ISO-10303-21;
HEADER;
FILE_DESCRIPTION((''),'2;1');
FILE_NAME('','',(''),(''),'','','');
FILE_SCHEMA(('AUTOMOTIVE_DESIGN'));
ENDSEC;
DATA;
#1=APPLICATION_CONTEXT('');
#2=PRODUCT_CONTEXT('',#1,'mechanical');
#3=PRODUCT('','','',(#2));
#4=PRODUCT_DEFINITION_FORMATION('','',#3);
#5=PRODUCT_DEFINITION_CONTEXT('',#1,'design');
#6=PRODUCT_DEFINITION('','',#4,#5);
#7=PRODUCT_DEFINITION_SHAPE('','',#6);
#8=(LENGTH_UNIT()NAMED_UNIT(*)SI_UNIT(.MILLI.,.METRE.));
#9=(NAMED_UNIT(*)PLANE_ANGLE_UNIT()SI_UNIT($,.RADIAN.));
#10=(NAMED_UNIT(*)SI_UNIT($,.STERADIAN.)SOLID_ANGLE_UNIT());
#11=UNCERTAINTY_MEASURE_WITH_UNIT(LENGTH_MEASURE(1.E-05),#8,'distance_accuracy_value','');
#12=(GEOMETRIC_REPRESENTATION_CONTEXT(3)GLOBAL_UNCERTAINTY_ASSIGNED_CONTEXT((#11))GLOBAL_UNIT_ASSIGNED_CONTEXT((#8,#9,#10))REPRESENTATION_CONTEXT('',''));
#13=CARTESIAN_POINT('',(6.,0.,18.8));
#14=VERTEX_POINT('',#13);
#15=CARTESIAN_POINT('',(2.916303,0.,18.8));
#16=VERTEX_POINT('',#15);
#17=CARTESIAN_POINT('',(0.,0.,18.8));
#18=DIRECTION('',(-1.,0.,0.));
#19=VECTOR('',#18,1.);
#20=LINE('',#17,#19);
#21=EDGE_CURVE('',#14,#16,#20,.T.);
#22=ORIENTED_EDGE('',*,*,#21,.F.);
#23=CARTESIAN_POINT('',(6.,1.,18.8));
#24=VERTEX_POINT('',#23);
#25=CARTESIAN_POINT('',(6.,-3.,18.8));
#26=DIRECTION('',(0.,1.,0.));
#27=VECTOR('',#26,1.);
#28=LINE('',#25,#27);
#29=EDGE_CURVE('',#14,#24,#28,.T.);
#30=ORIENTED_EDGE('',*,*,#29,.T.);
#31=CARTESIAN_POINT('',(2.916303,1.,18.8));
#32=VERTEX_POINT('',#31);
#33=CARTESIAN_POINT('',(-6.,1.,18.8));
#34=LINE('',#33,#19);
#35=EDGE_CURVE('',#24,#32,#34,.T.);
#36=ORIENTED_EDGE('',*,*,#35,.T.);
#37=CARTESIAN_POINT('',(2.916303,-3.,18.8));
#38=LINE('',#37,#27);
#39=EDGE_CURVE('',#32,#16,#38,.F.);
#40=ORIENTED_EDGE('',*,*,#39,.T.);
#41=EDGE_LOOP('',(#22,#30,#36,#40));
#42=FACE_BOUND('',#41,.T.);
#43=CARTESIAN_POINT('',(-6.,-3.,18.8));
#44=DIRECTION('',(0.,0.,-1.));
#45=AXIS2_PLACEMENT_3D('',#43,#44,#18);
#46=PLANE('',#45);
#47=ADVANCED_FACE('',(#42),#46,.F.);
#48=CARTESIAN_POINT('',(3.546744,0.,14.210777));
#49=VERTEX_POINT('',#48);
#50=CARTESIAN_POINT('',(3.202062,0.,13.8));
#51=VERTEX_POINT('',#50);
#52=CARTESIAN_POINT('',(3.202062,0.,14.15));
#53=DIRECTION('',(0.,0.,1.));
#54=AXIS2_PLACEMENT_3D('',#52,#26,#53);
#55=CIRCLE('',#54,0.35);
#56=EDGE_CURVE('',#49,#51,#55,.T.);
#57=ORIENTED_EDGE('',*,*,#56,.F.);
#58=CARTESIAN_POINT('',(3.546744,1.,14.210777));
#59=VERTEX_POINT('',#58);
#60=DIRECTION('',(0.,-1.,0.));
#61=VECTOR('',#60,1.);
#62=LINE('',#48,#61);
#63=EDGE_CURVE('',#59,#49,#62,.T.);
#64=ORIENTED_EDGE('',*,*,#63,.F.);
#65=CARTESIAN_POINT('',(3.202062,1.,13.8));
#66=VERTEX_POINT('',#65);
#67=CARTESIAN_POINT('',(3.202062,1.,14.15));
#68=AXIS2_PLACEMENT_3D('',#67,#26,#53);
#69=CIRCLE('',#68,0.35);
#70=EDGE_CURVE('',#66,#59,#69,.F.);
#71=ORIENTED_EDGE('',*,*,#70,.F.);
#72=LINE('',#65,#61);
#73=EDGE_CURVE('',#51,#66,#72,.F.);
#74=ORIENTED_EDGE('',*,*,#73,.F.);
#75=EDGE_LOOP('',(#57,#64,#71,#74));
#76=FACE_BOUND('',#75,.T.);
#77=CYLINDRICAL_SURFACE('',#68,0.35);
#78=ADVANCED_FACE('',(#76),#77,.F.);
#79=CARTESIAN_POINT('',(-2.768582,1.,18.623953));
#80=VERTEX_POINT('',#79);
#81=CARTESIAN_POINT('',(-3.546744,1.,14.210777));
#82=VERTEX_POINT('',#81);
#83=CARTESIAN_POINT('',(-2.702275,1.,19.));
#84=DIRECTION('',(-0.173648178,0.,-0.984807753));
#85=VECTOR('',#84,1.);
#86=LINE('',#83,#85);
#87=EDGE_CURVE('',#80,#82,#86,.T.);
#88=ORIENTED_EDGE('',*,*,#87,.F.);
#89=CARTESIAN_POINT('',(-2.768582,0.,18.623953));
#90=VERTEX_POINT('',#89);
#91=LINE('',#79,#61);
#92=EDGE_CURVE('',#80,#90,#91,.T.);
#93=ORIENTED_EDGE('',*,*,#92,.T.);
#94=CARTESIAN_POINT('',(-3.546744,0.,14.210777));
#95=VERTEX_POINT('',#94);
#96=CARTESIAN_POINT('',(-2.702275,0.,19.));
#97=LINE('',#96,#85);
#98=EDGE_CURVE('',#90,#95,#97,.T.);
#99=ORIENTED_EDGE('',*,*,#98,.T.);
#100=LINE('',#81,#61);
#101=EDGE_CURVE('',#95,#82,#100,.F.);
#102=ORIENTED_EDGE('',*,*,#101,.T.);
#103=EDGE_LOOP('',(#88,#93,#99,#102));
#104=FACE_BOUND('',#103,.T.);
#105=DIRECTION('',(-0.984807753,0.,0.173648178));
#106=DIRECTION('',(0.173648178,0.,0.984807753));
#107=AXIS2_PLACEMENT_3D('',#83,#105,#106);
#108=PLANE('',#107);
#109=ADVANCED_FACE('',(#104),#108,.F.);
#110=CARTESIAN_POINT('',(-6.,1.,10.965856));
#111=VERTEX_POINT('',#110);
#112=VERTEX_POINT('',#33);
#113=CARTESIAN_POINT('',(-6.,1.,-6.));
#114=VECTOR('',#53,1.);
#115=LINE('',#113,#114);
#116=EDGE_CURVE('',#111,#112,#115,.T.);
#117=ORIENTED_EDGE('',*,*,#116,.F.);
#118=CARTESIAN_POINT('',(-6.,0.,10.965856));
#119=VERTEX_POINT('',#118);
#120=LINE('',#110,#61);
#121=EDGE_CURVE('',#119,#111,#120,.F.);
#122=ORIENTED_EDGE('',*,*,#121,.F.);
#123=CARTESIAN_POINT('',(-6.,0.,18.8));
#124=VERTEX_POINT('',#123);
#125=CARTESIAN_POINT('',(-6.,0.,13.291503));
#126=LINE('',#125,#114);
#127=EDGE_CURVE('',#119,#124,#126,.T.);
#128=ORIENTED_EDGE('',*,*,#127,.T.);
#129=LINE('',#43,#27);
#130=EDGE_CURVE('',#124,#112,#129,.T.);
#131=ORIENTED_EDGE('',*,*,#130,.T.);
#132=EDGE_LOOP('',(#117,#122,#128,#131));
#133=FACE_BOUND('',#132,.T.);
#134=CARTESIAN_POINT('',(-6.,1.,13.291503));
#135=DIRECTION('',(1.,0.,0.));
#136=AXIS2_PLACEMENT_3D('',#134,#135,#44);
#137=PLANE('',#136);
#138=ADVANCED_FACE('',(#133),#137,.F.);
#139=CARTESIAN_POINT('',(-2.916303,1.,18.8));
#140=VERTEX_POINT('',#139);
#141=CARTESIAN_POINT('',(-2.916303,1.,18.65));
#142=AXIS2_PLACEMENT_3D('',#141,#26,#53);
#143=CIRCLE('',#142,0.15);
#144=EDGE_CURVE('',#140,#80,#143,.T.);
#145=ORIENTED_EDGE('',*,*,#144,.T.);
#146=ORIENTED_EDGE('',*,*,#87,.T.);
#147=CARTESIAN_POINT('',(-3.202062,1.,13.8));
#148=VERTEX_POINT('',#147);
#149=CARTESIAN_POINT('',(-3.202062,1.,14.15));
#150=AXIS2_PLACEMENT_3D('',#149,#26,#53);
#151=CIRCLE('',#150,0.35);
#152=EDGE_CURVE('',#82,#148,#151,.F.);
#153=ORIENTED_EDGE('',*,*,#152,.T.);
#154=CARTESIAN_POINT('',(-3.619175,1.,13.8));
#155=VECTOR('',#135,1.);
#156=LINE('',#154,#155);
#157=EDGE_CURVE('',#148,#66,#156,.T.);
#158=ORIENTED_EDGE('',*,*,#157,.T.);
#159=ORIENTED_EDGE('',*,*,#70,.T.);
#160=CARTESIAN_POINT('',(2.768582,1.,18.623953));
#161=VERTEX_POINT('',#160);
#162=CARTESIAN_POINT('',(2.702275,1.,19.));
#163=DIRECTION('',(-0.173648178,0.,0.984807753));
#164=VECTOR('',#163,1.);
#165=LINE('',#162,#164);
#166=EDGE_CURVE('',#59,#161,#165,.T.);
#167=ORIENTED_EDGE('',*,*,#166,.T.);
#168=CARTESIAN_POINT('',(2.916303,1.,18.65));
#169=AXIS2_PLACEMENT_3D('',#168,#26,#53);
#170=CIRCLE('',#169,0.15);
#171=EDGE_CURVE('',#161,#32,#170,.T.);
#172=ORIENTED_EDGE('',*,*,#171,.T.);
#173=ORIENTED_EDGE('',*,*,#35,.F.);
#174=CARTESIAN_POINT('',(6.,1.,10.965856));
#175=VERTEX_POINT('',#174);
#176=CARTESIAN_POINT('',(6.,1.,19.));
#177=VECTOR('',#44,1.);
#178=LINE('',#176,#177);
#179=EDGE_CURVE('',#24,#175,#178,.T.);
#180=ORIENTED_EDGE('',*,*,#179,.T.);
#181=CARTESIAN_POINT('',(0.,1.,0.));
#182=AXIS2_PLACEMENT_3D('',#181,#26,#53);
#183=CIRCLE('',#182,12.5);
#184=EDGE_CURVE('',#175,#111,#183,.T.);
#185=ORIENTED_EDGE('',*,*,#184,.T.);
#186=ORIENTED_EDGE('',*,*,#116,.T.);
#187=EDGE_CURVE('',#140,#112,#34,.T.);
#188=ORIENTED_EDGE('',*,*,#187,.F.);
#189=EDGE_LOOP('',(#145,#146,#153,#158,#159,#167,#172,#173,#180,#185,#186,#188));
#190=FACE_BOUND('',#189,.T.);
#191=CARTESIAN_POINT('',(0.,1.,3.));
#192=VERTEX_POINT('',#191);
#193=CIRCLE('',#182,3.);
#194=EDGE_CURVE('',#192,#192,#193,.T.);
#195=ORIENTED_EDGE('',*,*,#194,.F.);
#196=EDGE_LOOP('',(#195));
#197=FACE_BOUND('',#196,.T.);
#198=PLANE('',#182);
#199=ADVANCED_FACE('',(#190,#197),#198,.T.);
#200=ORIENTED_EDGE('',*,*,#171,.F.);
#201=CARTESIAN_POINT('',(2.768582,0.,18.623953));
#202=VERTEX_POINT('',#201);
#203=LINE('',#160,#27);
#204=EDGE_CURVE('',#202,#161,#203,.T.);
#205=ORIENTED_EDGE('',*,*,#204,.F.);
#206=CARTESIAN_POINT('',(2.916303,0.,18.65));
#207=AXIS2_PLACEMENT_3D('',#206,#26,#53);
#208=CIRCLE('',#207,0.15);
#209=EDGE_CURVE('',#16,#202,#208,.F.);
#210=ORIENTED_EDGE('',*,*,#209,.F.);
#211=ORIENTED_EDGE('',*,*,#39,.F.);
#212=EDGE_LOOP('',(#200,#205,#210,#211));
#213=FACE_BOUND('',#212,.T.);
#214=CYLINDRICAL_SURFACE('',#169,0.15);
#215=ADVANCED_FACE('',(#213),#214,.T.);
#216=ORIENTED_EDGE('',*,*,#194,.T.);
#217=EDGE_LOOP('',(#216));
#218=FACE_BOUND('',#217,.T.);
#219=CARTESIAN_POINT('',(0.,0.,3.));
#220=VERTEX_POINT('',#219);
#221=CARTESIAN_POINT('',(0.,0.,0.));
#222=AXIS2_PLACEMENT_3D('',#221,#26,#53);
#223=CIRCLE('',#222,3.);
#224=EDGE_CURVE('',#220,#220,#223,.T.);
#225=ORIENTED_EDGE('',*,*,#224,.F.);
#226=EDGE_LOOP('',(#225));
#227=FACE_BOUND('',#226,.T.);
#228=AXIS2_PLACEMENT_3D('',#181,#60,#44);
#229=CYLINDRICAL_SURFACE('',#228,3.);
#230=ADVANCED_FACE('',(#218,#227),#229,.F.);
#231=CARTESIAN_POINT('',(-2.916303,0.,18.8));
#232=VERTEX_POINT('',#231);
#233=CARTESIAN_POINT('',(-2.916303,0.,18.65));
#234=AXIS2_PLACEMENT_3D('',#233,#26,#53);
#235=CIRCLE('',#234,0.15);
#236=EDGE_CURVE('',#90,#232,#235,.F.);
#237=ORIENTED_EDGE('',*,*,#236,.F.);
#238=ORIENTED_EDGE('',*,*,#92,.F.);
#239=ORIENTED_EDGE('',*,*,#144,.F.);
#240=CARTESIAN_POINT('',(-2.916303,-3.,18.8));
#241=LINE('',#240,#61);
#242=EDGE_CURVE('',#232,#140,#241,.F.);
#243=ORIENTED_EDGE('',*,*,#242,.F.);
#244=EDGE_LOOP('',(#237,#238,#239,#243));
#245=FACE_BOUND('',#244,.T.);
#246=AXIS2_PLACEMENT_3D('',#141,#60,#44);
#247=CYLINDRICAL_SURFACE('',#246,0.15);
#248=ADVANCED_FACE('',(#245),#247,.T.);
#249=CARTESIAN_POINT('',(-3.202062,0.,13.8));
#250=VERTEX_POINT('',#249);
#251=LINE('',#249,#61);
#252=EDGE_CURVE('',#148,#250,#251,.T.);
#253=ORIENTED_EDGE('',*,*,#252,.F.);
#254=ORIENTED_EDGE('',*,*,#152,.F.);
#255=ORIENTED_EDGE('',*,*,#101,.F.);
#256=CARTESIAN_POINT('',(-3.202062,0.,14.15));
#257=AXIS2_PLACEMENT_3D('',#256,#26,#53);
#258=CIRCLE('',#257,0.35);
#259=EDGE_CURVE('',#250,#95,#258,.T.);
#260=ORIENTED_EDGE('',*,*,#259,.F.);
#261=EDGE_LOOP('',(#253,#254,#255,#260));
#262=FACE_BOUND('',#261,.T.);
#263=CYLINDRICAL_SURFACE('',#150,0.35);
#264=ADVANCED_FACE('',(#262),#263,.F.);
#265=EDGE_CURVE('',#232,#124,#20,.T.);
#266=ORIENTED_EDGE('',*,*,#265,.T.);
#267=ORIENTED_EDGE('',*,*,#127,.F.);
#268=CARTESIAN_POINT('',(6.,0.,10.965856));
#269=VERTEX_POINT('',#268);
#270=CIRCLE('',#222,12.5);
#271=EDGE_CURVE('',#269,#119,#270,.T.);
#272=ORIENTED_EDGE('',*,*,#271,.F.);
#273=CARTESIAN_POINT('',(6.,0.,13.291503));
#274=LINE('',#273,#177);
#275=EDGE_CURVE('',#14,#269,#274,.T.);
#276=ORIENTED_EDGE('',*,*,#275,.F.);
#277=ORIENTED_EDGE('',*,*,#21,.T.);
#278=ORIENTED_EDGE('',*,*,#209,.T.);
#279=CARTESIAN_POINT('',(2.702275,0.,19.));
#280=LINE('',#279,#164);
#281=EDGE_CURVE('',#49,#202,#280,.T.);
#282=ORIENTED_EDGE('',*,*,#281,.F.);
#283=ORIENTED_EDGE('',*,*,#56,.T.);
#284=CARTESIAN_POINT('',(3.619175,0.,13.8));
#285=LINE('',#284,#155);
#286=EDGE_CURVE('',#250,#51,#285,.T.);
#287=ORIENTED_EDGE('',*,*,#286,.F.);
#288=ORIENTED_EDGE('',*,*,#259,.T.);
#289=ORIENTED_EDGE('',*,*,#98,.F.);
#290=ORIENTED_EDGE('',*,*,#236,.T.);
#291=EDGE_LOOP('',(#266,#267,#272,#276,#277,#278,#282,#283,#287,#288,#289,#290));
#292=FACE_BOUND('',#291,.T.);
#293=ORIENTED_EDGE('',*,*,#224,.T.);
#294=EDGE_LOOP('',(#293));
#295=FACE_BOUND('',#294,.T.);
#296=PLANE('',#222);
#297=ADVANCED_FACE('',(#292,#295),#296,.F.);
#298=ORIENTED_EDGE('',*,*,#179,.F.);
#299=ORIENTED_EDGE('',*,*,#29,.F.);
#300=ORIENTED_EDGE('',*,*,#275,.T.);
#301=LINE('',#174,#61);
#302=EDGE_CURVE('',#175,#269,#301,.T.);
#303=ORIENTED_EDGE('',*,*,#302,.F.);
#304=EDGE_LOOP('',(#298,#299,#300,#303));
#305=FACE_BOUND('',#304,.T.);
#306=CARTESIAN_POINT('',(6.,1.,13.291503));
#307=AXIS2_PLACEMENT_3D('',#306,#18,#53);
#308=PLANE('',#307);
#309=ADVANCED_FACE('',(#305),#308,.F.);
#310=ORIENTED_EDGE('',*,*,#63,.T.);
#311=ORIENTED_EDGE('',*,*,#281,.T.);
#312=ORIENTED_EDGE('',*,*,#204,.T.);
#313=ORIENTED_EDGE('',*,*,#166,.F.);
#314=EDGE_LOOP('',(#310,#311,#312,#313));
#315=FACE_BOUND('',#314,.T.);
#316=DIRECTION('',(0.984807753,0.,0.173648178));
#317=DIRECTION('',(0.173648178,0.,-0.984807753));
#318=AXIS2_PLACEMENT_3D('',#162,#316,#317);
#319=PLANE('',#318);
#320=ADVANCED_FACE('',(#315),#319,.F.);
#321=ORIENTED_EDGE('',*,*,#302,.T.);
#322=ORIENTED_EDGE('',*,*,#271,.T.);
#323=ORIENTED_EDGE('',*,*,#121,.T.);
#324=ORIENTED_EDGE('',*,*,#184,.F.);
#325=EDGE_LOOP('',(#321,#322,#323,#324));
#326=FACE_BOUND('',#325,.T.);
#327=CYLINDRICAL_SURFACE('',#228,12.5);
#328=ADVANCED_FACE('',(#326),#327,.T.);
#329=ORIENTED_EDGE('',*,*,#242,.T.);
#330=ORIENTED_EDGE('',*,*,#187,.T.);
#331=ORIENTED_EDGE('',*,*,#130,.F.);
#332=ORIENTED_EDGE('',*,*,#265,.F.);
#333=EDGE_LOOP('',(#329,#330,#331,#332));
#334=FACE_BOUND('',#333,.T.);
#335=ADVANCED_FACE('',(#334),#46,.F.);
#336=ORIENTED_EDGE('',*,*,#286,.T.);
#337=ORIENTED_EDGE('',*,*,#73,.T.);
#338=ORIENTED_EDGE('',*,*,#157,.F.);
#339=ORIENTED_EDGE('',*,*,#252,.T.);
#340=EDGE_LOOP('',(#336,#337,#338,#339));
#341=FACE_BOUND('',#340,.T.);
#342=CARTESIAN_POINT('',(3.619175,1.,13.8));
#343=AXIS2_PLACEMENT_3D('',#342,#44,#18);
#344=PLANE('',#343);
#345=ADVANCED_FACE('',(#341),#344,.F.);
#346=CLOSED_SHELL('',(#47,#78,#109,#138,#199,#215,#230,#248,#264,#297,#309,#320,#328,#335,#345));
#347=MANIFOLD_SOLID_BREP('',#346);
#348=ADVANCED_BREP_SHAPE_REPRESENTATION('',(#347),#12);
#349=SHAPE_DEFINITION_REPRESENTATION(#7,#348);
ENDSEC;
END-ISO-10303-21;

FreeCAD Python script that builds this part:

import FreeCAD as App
import Part
import Sketcher

V = App.Vector
Q = App.Units.Quantity


def edges_at(feature, points):
    """Names of the edges that pass closest to the given points."""
    edges = feature.Shape.Edges
    near = lambda p: min(range(len(edges)), key=lambda i: edges[i].distToShape(Part.Vertex(*p))[0])
    return sorted({f"Edge{near(p) + 1}" for p in points})


def add_polygon(sketch, points):
    """Adds a closed chain of lines whose ends are joined by coincident constraints."""
    first, n = sketch.GeometryCount, len(points)
    for a, b in zip(points, points[1:] + points[:1]):
        sketch.addGeometry(Part.LineSegment(App.Vector(*a, 0), App.Vector(*b, 0)), False)
    for i in range(n):
        sketch.addConstraint(Sketcher.Constraint("Coincident", first + i, 2, first + (i + 1) % n, 1))

doc = App.newDocument("Part")
params = doc.addObject("Spreadsheet::Sheet", "Params")
for row, (alias, value) in enumerate([
    ("sketch1_diameter", "6 mm"),
    ("sketch1_width", "12 mm"),
    ("sketch1_height", "25 mm"),
    ("pad1_length", "1 mm"),
    ("sketch2_diameter", "25 mm"),
    ("sketch2_diameter2", "6 mm"),
    ("pad2_length", "1 mm"),
    ("sketch3_width", "12 mm"),
    ("sketch3_height", "0.2 mm"),
    ("pocket1_length", "4 mm"),
    ("fillet_radius", "0.35 mm"),
    ("fillet2_radius", "0.15 mm"),
], start=1):
    params.set(f"A{row}", alias)
    params.set(f"B{row}", "=" + value)
    params.setAlias(f"B{row}", alias)

body = doc.addObject("PartDesign::Body", "Body")

# Sketch on XZ plane
sketch1 = body.newObject("Sketcher::SketchObject", "Sketch")
sketch1.AttachmentSupport = (doc.getObject("XZ_Plane"), [""])
sketch1.MapMode = "FlatFace"
add_polygon(sketch1, [(-6, -6), (-6, 19), (-2.702275, 19), (-3.619175, 13.8), (3.619175, 13.8), (2.702275, 19), (6, 19), (6, -6)])  # lines 0-7
sketch1.addGeometry(Part.Circle(V(0, 0, 0), V(0, 0, 1), 3), False)  # 8
sketch1.addConstraint([
    Sketcher.Constraint("Vertical", 0),
    Sketcher.Constraint("Horizontal", 1),
    Sketcher.Constraint("Horizontal", 3),
    Sketcher.Constraint("Horizontal", 5),
    Sketcher.Constraint("Vertical", 6),
    Sketcher.Constraint("Horizontal", 7),
    Sketcher.Constraint("Coincident", 8, 3, -1, 1),
    Sketcher.Constraint("Symmetric", 1, 2, 4, 2, -2),
    Sketcher.Constraint("Equal", 1, 5),
    Sketcher.Constraint("Equal", 2, 4),
    Sketcher.Constraint("Diameter", 8, 6.0),
    Sketcher.Constraint("DistanceX", 7, 2, 7, 1, 12.0),
    Sketcher.Constraint("DistanceY", 0, 1, 0, 2, 25.0),
    Sketcher.Constraint("Angle", 2, Q("-100 deg")),
    Sketcher.Constraint("DistanceY", -1, 1, 0, 2, 19.0),
    Sketcher.Constraint("DistanceY", -1, 1, 2, 2, 13.8),
    Sketcher.Constraint("DistanceX", 3, 1, 3, 2, 7.238351),
])
sketch1.setExpression("Constraints[18]", "Params.sketch1_diameter")
sketch1.setExpression("Constraints[19]", "Params.sketch1_width")
sketch1.setExpression("Constraints[20]", "Params.sketch1_height")
pad1 = body.newObject("PartDesign::Pad", "Pad")
pad1.Profile = sketch1
pad1.setExpression("Length", "Params.pad1_length")
pad1.Reversed = True

# Sketch on XZ plane
sketch2 = body.newObject("Sketcher::SketchObject", "Sketch001")
sketch2.AttachmentSupport = (doc.getObject("XZ_Plane"), [""])
sketch2.MapMode = "FlatFace"
sketch2.addGeometry([
    Part.Circle(V(0, 0, 0), V(0, 0, 1), 12.5),
    Part.Circle(V(0, 0, 0), V(0, 0, 1), 3),
], False)
sketch2.addConstraint([
    Sketcher.Constraint("Coincident", 0, 3, -1, 1),
    Sketcher.Constraint("Coincident", 1, 3, -1, 1),
    Sketcher.Constraint("Diameter", 0, 25.0),
    Sketcher.Constraint("Diameter", 1, 6.0),
])
sketch2.setExpression("Constraints[2]", "Params.sketch2_diameter")
sketch2.setExpression("Constraints[3]", "Params.sketch2_diameter2")
pad2 = body.newObject("PartDesign::Pad", "Pad001")
pad2.Profile = sketch2
pad2.setExpression("Length", "Params.pad2_length")
pad2.Reversed = True

# Sketch on XZ plane
sketch3 = body.newObject("Sketcher::SketchObject", "Sketch002")
sketch3.AttachmentSupport = (doc.getObject("XZ_Plane"), [""])
sketch3.MapMode = "FlatFace"
sketch3.AttachmentOffset = App.Placement(V(0, 0, -1), App.Rotation())
add_polygon(sketch3, [(-6, 18.8), (-6, 19), (6, 19), (6, 18.8)])  # lines 0-3
sketch3.addConstraint([
    Sketcher.Constraint("Vertical", 0),
    Sketcher.Constraint("Horizontal", 1),
    Sketcher.Constraint("Vertical", 2),
    Sketcher.Constraint("Horizontal", 3),
    Sketcher.Constraint("DistanceX", 1, 1, 1, 2, 12.0),
    Sketcher.Constraint("DistanceY", 0, 1, 0, 2, 0.2),
    Sketcher.Constraint("DistanceX", 0, 2, -1, 1, 6.0),
    Sketcher.Constraint("DistanceY", -1, 1, 0, 2, 19.0),
])
sketch3.setExpression("Constraints[8]", "Params.sketch3_width")
sketch3.setExpression("Constraints[9]", "Params.sketch3_height")
pocket1 = body.newObject("PartDesign::Pocket", "Pocket")
pocket1.Profile = sketch3
pocket1.setExpression("Length", "Params.pocket1_length")
pocket1.Reversed = True
doc.recompute()

fillet = body.newObject("PartDesign::Fillet", "Fillet")
fillet.Base = (pocket1, edges_at(pocket1, [(3.619, 0.5, 13.8), (-3.619, 0.5, 13.8)]))
fillet.setExpression("Radius", "Params.fillet_radius")
doc.recompute()

fillet2 = body.newObject("PartDesign::Fillet", "Fillet001")
fillet2.Base = (fillet, edges_at(fillet, [(2.738, 0.5, 18.8), (-2.738, 0.5, 18.8)]))
fillet2.setExpression("Radius", "Params.fillet2_radius")

doc.recompute()
